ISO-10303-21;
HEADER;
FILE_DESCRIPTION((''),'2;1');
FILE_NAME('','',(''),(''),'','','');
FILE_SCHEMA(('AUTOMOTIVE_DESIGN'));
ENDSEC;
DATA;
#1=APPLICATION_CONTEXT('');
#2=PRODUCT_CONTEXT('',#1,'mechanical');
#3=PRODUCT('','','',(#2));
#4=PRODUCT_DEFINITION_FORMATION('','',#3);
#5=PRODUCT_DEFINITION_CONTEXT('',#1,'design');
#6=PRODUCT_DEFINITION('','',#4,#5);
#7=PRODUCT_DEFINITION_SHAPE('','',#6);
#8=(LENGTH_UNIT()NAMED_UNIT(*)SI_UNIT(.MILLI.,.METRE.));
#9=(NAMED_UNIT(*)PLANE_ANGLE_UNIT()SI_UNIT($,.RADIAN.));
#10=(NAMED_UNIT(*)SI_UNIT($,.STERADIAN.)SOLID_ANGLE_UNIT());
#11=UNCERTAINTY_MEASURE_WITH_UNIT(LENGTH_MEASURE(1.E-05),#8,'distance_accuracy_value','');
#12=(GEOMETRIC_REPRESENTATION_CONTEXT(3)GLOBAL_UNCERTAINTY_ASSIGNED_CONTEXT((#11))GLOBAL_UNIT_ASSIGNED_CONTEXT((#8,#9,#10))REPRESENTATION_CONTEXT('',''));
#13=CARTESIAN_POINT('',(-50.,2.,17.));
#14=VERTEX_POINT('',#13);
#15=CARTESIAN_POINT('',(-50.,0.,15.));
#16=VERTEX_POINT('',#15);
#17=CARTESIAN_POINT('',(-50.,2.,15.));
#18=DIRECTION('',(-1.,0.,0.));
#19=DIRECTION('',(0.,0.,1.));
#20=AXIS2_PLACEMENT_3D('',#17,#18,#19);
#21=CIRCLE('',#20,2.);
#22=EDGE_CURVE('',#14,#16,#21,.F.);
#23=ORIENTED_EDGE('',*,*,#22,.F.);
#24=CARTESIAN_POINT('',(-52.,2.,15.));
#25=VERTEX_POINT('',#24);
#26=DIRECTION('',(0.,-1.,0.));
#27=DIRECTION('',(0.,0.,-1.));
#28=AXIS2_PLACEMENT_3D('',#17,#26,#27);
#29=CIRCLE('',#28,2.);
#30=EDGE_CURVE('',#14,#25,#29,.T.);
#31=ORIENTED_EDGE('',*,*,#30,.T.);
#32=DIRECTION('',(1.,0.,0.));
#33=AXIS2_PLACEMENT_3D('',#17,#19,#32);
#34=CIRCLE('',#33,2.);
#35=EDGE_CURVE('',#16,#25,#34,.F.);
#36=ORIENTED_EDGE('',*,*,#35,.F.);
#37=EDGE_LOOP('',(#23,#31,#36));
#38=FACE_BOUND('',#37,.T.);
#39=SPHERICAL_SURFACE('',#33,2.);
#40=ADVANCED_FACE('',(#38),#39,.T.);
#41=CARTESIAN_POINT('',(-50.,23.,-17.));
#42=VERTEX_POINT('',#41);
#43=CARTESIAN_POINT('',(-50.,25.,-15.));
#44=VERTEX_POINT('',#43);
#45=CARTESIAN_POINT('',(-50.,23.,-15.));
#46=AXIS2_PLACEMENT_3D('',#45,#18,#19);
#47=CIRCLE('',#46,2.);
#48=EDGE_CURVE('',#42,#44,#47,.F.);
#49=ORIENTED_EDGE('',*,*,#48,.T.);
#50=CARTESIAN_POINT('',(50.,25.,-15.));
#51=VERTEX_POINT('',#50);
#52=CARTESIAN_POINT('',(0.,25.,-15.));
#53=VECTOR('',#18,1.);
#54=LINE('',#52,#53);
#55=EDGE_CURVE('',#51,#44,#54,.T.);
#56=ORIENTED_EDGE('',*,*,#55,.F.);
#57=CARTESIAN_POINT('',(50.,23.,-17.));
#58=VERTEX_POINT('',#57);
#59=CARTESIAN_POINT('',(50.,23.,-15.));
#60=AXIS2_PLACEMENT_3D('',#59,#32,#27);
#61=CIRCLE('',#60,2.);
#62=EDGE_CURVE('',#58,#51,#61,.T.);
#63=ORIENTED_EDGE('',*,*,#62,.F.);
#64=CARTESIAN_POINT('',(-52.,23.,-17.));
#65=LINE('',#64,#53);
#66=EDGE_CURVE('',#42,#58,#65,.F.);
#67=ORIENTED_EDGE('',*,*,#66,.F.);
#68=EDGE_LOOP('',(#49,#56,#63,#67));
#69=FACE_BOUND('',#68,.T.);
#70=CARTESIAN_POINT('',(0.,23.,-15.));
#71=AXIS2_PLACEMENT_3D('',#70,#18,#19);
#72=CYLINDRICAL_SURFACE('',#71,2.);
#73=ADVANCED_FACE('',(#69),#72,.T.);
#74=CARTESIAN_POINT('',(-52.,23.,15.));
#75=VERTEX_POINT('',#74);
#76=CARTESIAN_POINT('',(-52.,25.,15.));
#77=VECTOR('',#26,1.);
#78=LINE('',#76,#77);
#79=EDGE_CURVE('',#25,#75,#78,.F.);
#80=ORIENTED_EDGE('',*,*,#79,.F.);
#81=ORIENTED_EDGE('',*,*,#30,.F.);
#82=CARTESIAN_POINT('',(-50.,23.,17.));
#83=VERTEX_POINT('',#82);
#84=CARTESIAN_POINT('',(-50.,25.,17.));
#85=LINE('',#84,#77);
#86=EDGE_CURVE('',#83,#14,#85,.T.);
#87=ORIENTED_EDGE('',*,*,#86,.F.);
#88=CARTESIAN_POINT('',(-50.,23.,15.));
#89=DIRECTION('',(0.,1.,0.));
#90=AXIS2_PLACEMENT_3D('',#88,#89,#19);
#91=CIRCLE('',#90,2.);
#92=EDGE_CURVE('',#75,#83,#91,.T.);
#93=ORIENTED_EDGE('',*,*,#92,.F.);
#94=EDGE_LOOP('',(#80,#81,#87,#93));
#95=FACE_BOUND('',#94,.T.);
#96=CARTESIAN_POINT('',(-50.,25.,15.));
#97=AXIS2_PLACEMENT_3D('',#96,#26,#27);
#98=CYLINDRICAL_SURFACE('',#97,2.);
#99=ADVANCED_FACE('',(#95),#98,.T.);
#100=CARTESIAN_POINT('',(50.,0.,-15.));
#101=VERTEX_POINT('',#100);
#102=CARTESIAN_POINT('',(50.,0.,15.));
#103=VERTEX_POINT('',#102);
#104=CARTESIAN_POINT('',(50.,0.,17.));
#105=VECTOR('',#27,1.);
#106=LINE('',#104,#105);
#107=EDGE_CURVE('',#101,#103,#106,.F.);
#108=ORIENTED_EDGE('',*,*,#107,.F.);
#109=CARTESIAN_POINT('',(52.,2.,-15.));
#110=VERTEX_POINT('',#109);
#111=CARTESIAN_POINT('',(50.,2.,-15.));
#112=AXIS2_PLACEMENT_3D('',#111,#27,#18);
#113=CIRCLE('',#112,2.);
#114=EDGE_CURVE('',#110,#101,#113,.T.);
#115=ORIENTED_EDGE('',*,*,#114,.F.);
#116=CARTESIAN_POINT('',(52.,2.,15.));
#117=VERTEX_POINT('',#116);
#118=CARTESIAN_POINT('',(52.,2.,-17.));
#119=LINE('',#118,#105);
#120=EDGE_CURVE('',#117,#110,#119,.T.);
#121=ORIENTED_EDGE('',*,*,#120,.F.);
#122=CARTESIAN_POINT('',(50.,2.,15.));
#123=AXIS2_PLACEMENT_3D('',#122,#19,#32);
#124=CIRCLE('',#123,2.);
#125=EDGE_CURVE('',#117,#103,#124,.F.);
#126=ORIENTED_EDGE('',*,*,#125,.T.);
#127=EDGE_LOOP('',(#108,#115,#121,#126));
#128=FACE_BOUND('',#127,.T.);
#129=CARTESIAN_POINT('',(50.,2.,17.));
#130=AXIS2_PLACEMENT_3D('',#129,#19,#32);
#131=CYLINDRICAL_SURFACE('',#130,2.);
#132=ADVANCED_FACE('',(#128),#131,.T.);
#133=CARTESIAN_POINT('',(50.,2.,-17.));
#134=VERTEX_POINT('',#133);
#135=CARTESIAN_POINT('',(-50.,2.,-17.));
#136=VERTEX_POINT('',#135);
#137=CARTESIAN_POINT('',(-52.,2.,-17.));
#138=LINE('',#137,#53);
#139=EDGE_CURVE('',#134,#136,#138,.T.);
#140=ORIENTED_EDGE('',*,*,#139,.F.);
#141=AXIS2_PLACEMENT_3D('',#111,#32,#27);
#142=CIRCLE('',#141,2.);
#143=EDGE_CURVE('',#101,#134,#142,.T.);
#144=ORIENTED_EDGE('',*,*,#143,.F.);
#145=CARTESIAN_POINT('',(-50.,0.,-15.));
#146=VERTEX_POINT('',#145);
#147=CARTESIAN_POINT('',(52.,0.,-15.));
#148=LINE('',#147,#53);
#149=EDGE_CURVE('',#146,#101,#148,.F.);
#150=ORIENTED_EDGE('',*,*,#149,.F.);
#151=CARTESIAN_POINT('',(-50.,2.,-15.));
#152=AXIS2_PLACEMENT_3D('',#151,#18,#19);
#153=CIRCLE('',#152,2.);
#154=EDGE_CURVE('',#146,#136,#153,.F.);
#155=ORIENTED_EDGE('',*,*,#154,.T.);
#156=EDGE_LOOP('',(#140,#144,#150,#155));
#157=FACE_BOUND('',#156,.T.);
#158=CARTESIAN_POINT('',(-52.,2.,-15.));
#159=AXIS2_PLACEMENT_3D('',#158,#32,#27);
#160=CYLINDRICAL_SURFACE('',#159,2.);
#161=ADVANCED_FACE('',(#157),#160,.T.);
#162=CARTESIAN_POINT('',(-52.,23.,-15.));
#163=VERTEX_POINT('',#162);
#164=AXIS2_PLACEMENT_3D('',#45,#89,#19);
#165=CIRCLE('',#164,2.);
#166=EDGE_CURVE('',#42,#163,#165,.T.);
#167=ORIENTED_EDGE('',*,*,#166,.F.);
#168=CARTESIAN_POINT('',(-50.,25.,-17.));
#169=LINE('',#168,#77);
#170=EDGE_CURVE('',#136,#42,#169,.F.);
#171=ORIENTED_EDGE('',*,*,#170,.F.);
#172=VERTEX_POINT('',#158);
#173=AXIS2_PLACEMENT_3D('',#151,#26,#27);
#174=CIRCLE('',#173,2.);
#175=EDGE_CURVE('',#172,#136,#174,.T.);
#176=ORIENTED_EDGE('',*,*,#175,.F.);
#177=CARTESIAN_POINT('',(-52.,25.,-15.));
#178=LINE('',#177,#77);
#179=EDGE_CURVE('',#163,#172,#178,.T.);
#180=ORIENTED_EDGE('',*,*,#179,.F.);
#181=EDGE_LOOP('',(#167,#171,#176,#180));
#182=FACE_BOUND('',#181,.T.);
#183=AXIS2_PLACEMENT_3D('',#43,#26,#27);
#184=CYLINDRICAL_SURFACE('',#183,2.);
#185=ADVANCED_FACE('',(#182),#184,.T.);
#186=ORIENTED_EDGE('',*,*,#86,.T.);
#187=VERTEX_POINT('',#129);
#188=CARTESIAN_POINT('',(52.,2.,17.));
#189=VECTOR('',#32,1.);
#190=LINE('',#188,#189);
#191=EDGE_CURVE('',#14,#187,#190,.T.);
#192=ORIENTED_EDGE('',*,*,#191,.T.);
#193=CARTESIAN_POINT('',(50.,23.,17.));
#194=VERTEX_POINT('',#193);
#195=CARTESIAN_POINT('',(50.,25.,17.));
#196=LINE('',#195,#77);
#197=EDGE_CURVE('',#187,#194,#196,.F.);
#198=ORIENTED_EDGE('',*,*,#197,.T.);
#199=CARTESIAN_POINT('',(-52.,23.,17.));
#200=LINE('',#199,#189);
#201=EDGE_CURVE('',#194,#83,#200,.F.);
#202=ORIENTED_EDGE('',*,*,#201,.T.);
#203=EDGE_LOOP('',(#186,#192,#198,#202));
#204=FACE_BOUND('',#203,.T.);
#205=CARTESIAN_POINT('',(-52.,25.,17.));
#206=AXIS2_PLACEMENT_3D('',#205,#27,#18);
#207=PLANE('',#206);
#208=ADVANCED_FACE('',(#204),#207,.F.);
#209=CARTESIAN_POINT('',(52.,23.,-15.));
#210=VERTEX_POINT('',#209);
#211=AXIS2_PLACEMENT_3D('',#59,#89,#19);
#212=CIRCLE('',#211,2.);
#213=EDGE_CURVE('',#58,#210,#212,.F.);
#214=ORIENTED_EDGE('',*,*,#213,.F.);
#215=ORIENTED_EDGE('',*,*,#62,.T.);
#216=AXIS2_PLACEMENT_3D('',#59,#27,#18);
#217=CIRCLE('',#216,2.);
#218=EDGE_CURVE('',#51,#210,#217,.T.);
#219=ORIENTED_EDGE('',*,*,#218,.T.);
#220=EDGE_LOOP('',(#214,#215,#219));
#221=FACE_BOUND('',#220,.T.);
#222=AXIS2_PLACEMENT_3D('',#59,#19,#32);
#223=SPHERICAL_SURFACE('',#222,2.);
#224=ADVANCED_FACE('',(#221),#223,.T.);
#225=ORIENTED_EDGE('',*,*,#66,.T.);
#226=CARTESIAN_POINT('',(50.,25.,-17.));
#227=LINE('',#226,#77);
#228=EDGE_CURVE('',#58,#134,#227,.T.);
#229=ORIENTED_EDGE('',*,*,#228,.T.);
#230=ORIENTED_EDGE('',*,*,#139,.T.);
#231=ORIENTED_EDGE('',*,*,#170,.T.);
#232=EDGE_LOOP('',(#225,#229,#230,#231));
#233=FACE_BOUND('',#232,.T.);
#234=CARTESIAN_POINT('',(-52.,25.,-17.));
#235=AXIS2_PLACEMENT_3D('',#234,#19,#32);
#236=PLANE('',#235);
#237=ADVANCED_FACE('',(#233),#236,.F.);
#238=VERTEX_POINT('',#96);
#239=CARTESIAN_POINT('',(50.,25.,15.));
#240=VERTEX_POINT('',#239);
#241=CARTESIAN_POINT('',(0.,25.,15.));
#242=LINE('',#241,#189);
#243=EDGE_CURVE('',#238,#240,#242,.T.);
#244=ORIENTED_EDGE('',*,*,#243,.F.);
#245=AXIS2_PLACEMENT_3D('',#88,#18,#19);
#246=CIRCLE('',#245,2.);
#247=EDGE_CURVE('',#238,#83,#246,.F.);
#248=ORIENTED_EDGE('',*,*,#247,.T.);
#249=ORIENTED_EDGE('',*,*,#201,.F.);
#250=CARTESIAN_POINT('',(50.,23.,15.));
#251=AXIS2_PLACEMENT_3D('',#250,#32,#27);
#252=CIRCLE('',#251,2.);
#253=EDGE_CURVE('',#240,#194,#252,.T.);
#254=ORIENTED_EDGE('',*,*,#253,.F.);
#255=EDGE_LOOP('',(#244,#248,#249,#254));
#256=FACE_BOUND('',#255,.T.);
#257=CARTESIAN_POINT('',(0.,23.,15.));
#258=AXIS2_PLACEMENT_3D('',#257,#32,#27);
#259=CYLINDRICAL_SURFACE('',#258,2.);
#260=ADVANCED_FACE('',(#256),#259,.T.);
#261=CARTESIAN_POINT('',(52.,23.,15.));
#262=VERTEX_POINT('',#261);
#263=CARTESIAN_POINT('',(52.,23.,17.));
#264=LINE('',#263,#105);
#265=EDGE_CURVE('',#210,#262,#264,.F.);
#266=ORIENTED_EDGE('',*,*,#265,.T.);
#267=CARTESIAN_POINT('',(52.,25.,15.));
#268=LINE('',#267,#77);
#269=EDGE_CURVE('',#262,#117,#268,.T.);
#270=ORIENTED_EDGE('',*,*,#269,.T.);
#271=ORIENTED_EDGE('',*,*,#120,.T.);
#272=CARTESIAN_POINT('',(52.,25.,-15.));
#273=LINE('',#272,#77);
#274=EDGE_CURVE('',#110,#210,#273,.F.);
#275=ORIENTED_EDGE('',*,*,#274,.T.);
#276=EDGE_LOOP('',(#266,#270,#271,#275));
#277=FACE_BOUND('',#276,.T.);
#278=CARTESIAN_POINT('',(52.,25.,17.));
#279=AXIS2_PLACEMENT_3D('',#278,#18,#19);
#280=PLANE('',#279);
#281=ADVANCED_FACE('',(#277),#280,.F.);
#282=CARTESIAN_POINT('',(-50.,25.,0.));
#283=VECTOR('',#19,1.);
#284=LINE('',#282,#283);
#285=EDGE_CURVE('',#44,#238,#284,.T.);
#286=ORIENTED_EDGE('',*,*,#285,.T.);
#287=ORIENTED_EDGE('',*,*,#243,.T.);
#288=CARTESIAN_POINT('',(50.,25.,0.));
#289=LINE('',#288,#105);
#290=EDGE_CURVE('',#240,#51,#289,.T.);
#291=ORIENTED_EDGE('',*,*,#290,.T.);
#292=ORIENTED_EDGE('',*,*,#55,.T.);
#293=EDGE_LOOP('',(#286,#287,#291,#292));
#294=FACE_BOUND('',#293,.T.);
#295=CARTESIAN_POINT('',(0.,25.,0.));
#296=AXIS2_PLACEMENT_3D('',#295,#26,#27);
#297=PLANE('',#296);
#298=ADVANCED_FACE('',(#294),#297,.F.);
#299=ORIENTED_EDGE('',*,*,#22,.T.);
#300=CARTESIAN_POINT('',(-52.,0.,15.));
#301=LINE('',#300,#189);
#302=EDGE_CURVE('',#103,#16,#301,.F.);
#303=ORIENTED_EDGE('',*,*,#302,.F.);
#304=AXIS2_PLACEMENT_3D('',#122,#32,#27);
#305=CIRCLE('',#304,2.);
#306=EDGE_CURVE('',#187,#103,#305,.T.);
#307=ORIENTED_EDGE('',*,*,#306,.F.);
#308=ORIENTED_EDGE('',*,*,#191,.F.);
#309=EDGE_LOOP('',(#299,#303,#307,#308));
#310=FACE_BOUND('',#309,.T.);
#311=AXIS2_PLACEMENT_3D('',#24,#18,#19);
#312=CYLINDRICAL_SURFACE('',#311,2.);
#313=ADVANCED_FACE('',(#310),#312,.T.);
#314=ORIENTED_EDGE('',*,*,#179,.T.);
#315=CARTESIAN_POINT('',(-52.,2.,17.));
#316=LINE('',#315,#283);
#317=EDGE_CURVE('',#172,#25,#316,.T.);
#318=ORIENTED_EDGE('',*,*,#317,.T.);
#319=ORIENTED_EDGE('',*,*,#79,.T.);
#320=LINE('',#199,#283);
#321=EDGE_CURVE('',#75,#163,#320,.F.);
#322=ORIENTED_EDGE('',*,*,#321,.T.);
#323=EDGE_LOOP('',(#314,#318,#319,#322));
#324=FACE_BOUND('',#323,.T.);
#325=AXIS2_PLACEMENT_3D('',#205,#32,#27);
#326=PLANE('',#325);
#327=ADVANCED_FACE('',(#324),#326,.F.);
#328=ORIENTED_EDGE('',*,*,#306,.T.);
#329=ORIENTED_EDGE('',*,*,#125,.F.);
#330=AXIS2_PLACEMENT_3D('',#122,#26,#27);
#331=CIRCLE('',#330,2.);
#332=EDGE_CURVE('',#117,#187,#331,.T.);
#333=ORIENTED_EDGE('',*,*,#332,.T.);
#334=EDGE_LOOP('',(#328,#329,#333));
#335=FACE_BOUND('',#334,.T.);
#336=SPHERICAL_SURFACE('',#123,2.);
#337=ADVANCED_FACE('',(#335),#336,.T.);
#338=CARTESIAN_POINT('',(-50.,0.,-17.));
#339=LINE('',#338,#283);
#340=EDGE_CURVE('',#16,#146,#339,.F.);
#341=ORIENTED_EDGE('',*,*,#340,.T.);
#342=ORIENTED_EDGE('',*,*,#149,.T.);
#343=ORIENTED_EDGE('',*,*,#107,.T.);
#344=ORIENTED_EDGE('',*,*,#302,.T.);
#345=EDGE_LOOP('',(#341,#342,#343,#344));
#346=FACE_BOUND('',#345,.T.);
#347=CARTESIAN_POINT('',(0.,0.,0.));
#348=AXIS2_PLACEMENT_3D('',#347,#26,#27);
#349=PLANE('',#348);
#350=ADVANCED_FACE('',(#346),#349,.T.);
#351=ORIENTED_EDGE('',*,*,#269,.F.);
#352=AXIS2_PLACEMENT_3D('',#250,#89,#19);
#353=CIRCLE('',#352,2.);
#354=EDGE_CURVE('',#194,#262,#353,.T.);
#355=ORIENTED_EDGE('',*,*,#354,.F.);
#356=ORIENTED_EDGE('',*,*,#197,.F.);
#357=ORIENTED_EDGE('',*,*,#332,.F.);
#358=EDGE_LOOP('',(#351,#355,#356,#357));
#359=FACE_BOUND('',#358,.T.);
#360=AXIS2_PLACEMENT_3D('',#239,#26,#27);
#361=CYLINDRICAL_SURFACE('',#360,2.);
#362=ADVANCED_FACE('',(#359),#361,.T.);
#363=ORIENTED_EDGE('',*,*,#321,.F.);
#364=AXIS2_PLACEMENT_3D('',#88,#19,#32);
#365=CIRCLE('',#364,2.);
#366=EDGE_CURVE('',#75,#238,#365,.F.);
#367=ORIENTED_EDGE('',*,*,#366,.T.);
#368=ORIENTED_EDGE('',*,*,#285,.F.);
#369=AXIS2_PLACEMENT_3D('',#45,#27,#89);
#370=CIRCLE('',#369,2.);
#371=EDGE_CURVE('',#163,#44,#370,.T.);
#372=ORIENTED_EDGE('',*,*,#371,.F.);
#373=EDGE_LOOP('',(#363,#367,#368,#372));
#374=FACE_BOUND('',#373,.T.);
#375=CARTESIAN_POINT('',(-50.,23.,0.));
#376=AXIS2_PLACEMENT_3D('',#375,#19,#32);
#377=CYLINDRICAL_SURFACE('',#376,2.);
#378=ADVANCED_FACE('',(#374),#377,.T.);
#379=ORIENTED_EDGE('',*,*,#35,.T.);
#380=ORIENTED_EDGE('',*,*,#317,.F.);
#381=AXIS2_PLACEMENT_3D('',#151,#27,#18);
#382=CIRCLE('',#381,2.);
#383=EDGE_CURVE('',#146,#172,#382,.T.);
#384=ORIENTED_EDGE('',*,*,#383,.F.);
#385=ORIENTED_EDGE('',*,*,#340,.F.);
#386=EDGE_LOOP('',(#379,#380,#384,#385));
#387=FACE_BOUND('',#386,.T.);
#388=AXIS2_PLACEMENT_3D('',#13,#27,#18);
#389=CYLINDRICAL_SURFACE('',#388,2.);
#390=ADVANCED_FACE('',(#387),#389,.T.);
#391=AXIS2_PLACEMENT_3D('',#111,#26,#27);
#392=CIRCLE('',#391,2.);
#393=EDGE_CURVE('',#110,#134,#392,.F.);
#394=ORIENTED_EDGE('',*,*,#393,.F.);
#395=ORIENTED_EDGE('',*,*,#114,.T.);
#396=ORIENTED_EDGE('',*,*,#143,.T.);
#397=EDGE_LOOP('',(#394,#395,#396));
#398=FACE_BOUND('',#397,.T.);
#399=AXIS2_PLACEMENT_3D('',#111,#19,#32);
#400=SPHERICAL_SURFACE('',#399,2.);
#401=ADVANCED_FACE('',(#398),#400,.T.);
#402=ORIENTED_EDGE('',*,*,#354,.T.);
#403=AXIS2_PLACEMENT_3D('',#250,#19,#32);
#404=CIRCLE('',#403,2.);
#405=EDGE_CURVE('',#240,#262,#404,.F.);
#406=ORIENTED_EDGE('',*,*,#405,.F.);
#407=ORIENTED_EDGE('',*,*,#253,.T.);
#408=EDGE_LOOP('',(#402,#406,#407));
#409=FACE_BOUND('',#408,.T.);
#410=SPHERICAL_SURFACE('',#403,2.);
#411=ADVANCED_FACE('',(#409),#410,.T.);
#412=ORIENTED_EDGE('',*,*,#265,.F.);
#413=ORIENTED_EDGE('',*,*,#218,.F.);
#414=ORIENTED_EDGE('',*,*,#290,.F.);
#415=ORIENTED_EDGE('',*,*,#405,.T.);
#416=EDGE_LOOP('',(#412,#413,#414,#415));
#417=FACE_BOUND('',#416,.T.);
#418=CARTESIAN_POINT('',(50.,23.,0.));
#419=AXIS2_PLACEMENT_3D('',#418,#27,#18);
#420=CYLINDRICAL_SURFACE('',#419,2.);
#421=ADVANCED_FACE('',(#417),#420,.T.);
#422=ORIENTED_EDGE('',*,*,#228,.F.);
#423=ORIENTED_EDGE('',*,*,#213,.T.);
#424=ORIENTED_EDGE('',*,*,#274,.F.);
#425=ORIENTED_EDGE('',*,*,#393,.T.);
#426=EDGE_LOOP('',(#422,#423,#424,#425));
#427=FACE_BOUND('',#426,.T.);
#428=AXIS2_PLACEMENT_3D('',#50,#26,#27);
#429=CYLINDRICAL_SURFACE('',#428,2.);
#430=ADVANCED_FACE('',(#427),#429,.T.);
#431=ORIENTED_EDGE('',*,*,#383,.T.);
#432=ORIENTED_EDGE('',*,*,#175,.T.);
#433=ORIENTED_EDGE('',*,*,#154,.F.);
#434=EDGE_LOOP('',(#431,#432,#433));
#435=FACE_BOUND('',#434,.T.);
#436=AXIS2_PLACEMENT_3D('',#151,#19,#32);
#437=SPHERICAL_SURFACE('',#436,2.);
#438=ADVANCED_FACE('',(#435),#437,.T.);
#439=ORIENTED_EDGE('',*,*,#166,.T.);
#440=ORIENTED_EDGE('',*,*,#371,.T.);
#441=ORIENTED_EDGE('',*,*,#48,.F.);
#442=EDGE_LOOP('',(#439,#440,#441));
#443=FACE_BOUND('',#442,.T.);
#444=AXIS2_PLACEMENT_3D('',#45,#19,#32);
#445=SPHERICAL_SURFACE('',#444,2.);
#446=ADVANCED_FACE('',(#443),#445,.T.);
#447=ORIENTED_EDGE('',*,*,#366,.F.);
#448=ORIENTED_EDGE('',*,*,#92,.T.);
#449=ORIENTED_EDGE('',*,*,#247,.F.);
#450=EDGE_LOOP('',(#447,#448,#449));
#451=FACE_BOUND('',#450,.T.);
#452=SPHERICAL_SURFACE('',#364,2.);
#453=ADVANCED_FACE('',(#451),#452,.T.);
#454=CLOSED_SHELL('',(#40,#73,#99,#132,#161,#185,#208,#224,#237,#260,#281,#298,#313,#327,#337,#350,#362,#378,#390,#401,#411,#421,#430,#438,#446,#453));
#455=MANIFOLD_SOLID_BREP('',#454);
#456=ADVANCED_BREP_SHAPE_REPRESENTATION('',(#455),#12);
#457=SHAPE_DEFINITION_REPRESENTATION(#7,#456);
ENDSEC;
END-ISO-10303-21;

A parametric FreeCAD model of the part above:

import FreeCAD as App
import Part
import Sketcher
Q = App.Units.Quantity

doc = App.newDocument("Part")
body = doc.addObject("PartDesign::Body", "Body")

sketch1 = doc.addObject("Sketcher::SketchObject", "Sketch")
body.addObject(sketch1)
sketch1.AttachmentSupport = (doc.XZ_Plane, [""])
sketch1.MapMode = "FlatFace"
sketch1.addGeometry([
    Part.LineSegment(App.Vector(-52, -17, 0), App.Vector(-52, 17, 0)),
    Part.LineSegment(App.Vector(-52, 17, 0), App.Vector(52, 17, 0)),
    Part.LineSegment(App.Vector(52, 17, 0), App.Vector(52, -17, 0)),
    Part.LineSegment(App.Vector(52, -17, 0), App.Vector(-52, -17, 0)),
], False)
sketch1.addConstraint([
    Sketcher.Constraint("Coincident", 0, 2, 1, 1),
    Sketcher.Constraint("Coincident", 1, 2, 2, 1),
    Sketcher.Constraint("Coincident", 2, 2, 3, 1),
    Sketcher.Constraint("Coincident", 3, 2, 0, 1),
    Sketcher.Constraint("Vertical", 0),
    Sketcher.Constraint("Horizontal", 1),
    Sketcher.Constraint("Vertical", 2),
    Sketcher.Constraint("Horizontal", 3),
    Sketcher.Constraint("Symmetric", 0, 2, 2, 2, -1, 1),
    Sketcher.Constraint("DistanceX", 1, 1, 1, 2, Q("104 mm")),
    Sketcher.Constraint("DistanceY", 0, 1, 0, 2, Q("34 mm")),
])
pad1 = doc.addObject("PartDesign::Pad", "Pad")
body.addObject(pad1)
pad1.Profile = sketch1
pad1.Length = 25
pad1.Reversed = True
doc.recompute()

fillet = doc.addObject("PartDesign::Fillet", "Fillet")
body.addObject(fillet)
fillet.Base = (pad1, ["Edge1"])
fillet.UseAllEdges = True
fillet.Radius = 2

doc.recompute()
